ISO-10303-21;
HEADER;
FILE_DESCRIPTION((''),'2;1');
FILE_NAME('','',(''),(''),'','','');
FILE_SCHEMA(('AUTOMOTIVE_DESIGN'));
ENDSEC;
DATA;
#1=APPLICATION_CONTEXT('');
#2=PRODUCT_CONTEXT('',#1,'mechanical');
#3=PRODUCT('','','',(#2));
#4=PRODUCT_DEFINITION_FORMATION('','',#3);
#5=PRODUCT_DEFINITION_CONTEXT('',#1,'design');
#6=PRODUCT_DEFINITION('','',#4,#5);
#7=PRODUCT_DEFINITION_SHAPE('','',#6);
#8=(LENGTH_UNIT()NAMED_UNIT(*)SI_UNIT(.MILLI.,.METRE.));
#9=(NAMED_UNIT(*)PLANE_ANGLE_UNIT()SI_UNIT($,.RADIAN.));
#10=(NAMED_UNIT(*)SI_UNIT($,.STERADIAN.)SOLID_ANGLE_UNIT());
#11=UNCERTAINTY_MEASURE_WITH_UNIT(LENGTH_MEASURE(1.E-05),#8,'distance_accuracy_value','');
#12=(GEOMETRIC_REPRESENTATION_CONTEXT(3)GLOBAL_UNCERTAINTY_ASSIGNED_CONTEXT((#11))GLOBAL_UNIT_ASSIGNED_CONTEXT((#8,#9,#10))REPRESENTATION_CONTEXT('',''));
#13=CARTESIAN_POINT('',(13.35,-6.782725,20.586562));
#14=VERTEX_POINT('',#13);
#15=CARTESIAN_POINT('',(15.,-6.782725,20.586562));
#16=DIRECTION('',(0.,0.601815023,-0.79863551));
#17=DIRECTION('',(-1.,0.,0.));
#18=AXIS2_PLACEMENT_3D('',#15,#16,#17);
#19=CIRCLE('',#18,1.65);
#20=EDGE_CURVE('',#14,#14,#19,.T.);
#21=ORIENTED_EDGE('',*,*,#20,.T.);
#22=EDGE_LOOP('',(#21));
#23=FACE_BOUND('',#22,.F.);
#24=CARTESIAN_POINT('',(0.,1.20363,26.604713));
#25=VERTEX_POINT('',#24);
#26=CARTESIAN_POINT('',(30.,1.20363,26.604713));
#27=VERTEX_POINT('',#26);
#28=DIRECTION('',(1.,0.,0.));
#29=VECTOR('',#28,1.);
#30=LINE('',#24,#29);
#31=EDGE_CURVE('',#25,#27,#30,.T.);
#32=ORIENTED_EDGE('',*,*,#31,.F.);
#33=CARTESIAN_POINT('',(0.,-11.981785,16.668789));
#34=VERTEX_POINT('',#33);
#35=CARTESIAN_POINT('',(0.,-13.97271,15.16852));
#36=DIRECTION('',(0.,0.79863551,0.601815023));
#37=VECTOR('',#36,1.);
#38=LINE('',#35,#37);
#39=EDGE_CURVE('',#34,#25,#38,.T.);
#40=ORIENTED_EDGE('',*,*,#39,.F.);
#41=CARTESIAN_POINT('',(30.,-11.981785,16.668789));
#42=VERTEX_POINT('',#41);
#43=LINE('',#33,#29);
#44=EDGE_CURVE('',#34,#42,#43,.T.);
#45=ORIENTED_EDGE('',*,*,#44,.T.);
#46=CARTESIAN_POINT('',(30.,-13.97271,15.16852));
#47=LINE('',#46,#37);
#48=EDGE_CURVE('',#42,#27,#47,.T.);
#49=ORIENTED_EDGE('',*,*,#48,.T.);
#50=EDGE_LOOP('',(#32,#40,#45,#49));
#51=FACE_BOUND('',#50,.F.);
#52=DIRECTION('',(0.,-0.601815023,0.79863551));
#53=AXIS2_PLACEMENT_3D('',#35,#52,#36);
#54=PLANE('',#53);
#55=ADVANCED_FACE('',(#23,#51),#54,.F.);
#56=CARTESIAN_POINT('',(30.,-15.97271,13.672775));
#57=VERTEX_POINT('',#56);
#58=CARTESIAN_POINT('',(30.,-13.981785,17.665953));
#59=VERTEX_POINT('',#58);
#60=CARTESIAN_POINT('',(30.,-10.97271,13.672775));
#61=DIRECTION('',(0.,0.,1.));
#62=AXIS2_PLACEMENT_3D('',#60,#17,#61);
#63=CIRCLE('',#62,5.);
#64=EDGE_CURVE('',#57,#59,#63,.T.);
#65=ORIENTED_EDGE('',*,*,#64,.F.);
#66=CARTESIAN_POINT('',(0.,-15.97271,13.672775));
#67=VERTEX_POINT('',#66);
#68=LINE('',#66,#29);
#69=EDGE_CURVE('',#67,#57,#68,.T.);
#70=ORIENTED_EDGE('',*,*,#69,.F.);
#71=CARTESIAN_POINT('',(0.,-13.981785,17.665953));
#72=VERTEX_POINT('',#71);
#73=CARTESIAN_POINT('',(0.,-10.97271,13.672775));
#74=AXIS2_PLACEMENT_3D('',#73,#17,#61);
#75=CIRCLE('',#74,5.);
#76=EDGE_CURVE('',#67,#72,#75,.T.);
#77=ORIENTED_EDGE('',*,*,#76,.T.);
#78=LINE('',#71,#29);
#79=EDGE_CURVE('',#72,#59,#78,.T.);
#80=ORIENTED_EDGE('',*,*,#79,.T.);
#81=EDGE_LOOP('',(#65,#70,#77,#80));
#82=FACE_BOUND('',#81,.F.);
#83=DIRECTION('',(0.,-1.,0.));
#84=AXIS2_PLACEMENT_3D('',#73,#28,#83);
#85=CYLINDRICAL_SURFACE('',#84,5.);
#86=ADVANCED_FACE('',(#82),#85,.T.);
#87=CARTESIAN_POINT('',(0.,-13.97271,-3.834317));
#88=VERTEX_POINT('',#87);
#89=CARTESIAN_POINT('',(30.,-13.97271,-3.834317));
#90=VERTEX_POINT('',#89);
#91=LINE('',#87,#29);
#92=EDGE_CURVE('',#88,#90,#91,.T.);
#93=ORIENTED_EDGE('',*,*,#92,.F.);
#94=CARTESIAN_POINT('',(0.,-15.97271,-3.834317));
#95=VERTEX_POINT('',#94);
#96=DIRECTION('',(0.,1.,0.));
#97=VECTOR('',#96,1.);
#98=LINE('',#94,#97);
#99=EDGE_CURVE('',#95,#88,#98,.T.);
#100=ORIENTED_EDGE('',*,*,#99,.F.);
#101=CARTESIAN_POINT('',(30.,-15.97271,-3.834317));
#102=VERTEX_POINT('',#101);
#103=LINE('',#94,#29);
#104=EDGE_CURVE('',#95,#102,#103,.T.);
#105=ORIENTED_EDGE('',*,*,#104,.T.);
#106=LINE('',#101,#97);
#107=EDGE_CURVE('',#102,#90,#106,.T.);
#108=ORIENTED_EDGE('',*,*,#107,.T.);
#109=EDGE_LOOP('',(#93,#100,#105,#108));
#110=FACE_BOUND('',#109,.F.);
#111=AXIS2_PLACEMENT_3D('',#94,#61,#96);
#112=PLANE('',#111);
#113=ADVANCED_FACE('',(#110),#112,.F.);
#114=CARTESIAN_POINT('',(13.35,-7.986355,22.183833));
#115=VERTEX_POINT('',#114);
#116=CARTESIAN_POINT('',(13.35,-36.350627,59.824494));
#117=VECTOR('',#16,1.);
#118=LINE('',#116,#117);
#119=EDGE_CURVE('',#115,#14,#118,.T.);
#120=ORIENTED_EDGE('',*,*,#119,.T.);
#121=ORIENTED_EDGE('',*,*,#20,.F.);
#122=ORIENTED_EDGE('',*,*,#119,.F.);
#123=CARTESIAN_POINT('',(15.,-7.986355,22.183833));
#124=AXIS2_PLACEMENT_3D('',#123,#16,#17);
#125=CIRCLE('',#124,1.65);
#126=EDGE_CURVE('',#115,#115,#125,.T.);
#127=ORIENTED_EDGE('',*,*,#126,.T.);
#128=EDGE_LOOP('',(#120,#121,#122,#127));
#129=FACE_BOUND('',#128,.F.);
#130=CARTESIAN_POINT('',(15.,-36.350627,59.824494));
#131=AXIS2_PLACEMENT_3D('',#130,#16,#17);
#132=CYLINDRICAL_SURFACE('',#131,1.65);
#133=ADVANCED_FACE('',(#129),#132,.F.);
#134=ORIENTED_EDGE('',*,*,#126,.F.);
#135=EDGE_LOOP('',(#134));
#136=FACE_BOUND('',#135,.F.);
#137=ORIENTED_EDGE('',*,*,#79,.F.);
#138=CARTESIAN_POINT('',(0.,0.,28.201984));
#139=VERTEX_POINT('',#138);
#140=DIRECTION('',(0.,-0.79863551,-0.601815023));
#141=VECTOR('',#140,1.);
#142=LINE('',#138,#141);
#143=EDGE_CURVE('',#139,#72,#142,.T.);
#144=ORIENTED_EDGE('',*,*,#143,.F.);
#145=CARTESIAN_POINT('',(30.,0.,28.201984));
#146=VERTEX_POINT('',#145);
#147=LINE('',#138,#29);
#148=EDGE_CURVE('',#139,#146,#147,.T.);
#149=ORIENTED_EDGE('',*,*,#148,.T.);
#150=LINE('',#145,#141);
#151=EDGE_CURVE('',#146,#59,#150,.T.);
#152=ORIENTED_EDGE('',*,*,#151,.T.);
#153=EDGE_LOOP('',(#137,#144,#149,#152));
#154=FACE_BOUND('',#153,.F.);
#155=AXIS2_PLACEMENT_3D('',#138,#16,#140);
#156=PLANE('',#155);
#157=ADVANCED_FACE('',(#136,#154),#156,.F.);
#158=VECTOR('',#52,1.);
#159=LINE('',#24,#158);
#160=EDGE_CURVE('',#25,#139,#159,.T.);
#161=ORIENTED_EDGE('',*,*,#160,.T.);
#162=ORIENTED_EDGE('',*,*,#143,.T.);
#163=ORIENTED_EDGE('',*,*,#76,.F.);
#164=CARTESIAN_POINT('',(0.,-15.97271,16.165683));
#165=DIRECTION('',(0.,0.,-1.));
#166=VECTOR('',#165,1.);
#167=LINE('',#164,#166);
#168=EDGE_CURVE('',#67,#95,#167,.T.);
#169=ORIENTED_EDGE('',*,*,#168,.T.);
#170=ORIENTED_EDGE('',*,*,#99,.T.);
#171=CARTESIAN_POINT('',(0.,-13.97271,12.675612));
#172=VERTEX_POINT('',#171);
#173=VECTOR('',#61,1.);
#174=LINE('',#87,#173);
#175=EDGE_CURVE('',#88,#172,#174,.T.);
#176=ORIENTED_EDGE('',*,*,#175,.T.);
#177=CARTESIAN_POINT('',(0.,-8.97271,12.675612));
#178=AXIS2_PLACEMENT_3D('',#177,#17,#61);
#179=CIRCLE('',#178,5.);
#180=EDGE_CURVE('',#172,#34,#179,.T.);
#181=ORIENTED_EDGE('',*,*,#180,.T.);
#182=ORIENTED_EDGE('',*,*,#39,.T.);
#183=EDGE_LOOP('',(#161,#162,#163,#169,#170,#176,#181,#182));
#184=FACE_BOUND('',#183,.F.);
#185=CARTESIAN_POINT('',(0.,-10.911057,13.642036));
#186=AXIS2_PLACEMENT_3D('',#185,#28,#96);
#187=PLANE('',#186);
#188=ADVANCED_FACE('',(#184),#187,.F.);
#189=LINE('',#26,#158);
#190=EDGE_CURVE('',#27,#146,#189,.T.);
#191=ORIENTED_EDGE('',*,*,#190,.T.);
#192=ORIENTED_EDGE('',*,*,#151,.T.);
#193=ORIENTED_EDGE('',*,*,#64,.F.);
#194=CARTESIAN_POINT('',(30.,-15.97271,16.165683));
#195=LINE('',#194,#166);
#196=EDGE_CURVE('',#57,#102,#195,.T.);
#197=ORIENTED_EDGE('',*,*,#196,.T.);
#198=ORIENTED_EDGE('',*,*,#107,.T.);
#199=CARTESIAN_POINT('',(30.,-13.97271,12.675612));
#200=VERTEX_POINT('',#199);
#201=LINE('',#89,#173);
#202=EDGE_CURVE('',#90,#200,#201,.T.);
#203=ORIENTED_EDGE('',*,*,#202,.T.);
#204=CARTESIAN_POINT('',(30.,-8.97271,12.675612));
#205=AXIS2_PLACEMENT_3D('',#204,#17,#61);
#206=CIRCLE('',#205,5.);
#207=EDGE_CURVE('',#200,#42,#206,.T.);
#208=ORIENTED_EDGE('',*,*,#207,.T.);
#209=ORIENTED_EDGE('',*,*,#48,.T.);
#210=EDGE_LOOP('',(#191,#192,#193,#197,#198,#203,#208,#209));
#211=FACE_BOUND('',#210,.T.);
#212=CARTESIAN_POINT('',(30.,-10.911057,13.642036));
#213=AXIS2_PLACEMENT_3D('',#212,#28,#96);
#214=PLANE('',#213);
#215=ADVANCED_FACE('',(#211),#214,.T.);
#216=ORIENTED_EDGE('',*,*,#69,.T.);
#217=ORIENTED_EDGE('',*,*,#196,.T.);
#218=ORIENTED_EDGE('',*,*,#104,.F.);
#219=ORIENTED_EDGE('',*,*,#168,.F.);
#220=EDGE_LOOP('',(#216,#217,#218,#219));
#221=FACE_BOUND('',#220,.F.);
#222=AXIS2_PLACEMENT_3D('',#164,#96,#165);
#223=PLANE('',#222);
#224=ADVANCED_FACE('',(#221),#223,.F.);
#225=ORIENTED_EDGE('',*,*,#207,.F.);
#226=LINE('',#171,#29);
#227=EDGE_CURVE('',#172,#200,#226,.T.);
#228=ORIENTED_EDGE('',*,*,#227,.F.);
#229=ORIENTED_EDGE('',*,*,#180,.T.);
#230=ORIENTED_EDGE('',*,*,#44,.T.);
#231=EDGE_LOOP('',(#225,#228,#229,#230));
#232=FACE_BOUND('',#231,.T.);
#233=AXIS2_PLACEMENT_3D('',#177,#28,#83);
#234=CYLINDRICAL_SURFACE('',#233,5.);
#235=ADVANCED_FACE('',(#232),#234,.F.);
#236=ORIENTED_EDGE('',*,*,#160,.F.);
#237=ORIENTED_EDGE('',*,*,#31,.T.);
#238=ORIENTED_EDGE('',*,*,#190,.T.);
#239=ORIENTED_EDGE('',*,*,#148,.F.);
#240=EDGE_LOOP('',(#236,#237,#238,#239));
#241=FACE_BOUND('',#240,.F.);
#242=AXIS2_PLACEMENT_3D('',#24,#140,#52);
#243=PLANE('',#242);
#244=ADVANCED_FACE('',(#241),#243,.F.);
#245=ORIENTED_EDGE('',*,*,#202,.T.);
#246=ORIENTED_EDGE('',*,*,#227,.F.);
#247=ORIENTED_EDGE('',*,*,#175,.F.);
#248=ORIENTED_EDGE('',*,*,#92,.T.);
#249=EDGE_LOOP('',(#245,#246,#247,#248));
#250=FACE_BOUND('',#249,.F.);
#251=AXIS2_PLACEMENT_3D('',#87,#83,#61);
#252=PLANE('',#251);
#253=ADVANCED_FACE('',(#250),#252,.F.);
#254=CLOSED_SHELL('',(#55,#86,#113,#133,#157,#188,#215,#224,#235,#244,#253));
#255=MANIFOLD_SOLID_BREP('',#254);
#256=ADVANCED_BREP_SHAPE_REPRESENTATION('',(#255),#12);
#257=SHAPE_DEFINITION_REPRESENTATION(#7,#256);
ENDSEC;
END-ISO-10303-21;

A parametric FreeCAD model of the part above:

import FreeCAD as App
import Part
import Sketcher
Q = App.Units.Quantity


def edges_at(feature, points):
    """Names of the edges that pass closest to the given points."""
    edges = feature.Shape.Edges
    near = lambda p: min(range(len(edges)), key=lambda i: edges[i].distToShape(Part.Vertex(*p))[0])
    return sorted({f"Edge{near(p) + 1}" for p in points})

doc = App.newDocument("Part")
body = doc.addObject("PartDesign::Body", "Body")

sketch1 = body.newObject("Sketcher::SketchObject", "Sketch")
sketch1.AttachmentSupport = (doc.getObject("YZ_Plane"), [""])
sketch1.MapMode = "FlatFace"
sketch1.addGeometry([
    Part.LineSegment(App.Vector(-16, 16.2, 0), App.Vector(-16, -3.8, 0)),
    Part.LineSegment(App.Vector(-16, -3.8, 0), App.Vector(-14, -3.8, 0)),
    Part.LineSegment(App.Vector(-14, -3.8, 0), App.Vector(-14, 15.2, 0)),
    Part.LineSegment(App.Vector(-14, 15.2, 0), App.Vector(1.2, 26.6, 0)),
    Part.LineSegment(App.Vector(1.2, 26.6, 0), App.Vector(0, 28.2, 0)),
    Part.LineSegment(App.Vector(0, 28.2, 0), App.Vector(-16, 16.2, 0)),
], False)
sketch1.addConstraint([
    Sketcher.Constraint("Coincident", 0, 2, 1, 1),
    Sketcher.Constraint("Coincident", 1, 2, 2, 1),
    Sketcher.Constraint("Coincident", 2, 2, 3, 1),
    Sketcher.Constraint("Coincident", 3, 2, 4, 1),
    Sketcher.Constraint("Coincident", 4, 2, 5, 1),
    Sketcher.Constraint("Coincident", 5, 2, 0, 1),
    Sketcher.Constraint("Vertical", 0),
    Sketcher.Constraint("Horizontal", 1),
    Sketcher.Constraint("Vertical", 2),
    Sketcher.Constraint("PointOnObject", 4, 2, -2),
    Sketcher.Constraint("Perpendicular", 3, 4),
    Sketcher.Constraint("Perpendicular", 4, 5),
    Sketcher.Constraint("DistanceX", 1, 1, 1, 2, 2.0),
    Sketcher.Constraint("DistanceY", 0, 2, 0, 1, 20.0),
    Sketcher.Constraint("Angle", 3, Q("37 deg")),
    Sketcher.Constraint("Distance", 4, 2.0),
    Sketcher.Constraint("Distance", 5, 20.0),
    Sketcher.Constraint("DistanceY", -1, 1, 2, 2, 15.16852),
])
pad1 = body.newObject("PartDesign::Pad", "Pad")
pad1.Profile = sketch1
pad1.Length = 30

sketch2 = body.newObject("Sketcher::SketchObject", "Sketch001")
sketch2.Placement = App.Placement(App.Vector(0, -13.554743, 17.987752), App.Rotation(App.Vector(1, 0, 0), App.Vector(0, 0.79863551, 0.601815023), App.Vector(0, -0.601815023, 0.79863551), "ZXY"))
sketch2.addGeometry(Part.Circle(App.Vector(15, 7, 0), App.Vector(0, 0, 1), 1.6), False)
sketch2.addConstraint([
    Sketcher.Constraint("Diameter", 0, 3.3),
    Sketcher.Constraint("DistanceX", -1, 1, 0, 3, 15.0),
    Sketcher.Constraint("DistanceY", -1, 1, 0, 3, 6.972377),
])
doc.recompute()
hole = body.newObject("PartDesign::Hole", "Hole")
hole.Profile = sketch2
hole.ThreadType = "None"
hole.Diameter = 3.3
hole.DepthType = "ThroughAll"
doc.recompute()

fillet = body.newObject("PartDesign::Fillet", "Fillet")
fillet.Base = (hole, edges_at(hole, [(15, -15.973, 16.166), (15, -13.973, 15.169)]))
fillet.Radius = 5

doc.recompute()
